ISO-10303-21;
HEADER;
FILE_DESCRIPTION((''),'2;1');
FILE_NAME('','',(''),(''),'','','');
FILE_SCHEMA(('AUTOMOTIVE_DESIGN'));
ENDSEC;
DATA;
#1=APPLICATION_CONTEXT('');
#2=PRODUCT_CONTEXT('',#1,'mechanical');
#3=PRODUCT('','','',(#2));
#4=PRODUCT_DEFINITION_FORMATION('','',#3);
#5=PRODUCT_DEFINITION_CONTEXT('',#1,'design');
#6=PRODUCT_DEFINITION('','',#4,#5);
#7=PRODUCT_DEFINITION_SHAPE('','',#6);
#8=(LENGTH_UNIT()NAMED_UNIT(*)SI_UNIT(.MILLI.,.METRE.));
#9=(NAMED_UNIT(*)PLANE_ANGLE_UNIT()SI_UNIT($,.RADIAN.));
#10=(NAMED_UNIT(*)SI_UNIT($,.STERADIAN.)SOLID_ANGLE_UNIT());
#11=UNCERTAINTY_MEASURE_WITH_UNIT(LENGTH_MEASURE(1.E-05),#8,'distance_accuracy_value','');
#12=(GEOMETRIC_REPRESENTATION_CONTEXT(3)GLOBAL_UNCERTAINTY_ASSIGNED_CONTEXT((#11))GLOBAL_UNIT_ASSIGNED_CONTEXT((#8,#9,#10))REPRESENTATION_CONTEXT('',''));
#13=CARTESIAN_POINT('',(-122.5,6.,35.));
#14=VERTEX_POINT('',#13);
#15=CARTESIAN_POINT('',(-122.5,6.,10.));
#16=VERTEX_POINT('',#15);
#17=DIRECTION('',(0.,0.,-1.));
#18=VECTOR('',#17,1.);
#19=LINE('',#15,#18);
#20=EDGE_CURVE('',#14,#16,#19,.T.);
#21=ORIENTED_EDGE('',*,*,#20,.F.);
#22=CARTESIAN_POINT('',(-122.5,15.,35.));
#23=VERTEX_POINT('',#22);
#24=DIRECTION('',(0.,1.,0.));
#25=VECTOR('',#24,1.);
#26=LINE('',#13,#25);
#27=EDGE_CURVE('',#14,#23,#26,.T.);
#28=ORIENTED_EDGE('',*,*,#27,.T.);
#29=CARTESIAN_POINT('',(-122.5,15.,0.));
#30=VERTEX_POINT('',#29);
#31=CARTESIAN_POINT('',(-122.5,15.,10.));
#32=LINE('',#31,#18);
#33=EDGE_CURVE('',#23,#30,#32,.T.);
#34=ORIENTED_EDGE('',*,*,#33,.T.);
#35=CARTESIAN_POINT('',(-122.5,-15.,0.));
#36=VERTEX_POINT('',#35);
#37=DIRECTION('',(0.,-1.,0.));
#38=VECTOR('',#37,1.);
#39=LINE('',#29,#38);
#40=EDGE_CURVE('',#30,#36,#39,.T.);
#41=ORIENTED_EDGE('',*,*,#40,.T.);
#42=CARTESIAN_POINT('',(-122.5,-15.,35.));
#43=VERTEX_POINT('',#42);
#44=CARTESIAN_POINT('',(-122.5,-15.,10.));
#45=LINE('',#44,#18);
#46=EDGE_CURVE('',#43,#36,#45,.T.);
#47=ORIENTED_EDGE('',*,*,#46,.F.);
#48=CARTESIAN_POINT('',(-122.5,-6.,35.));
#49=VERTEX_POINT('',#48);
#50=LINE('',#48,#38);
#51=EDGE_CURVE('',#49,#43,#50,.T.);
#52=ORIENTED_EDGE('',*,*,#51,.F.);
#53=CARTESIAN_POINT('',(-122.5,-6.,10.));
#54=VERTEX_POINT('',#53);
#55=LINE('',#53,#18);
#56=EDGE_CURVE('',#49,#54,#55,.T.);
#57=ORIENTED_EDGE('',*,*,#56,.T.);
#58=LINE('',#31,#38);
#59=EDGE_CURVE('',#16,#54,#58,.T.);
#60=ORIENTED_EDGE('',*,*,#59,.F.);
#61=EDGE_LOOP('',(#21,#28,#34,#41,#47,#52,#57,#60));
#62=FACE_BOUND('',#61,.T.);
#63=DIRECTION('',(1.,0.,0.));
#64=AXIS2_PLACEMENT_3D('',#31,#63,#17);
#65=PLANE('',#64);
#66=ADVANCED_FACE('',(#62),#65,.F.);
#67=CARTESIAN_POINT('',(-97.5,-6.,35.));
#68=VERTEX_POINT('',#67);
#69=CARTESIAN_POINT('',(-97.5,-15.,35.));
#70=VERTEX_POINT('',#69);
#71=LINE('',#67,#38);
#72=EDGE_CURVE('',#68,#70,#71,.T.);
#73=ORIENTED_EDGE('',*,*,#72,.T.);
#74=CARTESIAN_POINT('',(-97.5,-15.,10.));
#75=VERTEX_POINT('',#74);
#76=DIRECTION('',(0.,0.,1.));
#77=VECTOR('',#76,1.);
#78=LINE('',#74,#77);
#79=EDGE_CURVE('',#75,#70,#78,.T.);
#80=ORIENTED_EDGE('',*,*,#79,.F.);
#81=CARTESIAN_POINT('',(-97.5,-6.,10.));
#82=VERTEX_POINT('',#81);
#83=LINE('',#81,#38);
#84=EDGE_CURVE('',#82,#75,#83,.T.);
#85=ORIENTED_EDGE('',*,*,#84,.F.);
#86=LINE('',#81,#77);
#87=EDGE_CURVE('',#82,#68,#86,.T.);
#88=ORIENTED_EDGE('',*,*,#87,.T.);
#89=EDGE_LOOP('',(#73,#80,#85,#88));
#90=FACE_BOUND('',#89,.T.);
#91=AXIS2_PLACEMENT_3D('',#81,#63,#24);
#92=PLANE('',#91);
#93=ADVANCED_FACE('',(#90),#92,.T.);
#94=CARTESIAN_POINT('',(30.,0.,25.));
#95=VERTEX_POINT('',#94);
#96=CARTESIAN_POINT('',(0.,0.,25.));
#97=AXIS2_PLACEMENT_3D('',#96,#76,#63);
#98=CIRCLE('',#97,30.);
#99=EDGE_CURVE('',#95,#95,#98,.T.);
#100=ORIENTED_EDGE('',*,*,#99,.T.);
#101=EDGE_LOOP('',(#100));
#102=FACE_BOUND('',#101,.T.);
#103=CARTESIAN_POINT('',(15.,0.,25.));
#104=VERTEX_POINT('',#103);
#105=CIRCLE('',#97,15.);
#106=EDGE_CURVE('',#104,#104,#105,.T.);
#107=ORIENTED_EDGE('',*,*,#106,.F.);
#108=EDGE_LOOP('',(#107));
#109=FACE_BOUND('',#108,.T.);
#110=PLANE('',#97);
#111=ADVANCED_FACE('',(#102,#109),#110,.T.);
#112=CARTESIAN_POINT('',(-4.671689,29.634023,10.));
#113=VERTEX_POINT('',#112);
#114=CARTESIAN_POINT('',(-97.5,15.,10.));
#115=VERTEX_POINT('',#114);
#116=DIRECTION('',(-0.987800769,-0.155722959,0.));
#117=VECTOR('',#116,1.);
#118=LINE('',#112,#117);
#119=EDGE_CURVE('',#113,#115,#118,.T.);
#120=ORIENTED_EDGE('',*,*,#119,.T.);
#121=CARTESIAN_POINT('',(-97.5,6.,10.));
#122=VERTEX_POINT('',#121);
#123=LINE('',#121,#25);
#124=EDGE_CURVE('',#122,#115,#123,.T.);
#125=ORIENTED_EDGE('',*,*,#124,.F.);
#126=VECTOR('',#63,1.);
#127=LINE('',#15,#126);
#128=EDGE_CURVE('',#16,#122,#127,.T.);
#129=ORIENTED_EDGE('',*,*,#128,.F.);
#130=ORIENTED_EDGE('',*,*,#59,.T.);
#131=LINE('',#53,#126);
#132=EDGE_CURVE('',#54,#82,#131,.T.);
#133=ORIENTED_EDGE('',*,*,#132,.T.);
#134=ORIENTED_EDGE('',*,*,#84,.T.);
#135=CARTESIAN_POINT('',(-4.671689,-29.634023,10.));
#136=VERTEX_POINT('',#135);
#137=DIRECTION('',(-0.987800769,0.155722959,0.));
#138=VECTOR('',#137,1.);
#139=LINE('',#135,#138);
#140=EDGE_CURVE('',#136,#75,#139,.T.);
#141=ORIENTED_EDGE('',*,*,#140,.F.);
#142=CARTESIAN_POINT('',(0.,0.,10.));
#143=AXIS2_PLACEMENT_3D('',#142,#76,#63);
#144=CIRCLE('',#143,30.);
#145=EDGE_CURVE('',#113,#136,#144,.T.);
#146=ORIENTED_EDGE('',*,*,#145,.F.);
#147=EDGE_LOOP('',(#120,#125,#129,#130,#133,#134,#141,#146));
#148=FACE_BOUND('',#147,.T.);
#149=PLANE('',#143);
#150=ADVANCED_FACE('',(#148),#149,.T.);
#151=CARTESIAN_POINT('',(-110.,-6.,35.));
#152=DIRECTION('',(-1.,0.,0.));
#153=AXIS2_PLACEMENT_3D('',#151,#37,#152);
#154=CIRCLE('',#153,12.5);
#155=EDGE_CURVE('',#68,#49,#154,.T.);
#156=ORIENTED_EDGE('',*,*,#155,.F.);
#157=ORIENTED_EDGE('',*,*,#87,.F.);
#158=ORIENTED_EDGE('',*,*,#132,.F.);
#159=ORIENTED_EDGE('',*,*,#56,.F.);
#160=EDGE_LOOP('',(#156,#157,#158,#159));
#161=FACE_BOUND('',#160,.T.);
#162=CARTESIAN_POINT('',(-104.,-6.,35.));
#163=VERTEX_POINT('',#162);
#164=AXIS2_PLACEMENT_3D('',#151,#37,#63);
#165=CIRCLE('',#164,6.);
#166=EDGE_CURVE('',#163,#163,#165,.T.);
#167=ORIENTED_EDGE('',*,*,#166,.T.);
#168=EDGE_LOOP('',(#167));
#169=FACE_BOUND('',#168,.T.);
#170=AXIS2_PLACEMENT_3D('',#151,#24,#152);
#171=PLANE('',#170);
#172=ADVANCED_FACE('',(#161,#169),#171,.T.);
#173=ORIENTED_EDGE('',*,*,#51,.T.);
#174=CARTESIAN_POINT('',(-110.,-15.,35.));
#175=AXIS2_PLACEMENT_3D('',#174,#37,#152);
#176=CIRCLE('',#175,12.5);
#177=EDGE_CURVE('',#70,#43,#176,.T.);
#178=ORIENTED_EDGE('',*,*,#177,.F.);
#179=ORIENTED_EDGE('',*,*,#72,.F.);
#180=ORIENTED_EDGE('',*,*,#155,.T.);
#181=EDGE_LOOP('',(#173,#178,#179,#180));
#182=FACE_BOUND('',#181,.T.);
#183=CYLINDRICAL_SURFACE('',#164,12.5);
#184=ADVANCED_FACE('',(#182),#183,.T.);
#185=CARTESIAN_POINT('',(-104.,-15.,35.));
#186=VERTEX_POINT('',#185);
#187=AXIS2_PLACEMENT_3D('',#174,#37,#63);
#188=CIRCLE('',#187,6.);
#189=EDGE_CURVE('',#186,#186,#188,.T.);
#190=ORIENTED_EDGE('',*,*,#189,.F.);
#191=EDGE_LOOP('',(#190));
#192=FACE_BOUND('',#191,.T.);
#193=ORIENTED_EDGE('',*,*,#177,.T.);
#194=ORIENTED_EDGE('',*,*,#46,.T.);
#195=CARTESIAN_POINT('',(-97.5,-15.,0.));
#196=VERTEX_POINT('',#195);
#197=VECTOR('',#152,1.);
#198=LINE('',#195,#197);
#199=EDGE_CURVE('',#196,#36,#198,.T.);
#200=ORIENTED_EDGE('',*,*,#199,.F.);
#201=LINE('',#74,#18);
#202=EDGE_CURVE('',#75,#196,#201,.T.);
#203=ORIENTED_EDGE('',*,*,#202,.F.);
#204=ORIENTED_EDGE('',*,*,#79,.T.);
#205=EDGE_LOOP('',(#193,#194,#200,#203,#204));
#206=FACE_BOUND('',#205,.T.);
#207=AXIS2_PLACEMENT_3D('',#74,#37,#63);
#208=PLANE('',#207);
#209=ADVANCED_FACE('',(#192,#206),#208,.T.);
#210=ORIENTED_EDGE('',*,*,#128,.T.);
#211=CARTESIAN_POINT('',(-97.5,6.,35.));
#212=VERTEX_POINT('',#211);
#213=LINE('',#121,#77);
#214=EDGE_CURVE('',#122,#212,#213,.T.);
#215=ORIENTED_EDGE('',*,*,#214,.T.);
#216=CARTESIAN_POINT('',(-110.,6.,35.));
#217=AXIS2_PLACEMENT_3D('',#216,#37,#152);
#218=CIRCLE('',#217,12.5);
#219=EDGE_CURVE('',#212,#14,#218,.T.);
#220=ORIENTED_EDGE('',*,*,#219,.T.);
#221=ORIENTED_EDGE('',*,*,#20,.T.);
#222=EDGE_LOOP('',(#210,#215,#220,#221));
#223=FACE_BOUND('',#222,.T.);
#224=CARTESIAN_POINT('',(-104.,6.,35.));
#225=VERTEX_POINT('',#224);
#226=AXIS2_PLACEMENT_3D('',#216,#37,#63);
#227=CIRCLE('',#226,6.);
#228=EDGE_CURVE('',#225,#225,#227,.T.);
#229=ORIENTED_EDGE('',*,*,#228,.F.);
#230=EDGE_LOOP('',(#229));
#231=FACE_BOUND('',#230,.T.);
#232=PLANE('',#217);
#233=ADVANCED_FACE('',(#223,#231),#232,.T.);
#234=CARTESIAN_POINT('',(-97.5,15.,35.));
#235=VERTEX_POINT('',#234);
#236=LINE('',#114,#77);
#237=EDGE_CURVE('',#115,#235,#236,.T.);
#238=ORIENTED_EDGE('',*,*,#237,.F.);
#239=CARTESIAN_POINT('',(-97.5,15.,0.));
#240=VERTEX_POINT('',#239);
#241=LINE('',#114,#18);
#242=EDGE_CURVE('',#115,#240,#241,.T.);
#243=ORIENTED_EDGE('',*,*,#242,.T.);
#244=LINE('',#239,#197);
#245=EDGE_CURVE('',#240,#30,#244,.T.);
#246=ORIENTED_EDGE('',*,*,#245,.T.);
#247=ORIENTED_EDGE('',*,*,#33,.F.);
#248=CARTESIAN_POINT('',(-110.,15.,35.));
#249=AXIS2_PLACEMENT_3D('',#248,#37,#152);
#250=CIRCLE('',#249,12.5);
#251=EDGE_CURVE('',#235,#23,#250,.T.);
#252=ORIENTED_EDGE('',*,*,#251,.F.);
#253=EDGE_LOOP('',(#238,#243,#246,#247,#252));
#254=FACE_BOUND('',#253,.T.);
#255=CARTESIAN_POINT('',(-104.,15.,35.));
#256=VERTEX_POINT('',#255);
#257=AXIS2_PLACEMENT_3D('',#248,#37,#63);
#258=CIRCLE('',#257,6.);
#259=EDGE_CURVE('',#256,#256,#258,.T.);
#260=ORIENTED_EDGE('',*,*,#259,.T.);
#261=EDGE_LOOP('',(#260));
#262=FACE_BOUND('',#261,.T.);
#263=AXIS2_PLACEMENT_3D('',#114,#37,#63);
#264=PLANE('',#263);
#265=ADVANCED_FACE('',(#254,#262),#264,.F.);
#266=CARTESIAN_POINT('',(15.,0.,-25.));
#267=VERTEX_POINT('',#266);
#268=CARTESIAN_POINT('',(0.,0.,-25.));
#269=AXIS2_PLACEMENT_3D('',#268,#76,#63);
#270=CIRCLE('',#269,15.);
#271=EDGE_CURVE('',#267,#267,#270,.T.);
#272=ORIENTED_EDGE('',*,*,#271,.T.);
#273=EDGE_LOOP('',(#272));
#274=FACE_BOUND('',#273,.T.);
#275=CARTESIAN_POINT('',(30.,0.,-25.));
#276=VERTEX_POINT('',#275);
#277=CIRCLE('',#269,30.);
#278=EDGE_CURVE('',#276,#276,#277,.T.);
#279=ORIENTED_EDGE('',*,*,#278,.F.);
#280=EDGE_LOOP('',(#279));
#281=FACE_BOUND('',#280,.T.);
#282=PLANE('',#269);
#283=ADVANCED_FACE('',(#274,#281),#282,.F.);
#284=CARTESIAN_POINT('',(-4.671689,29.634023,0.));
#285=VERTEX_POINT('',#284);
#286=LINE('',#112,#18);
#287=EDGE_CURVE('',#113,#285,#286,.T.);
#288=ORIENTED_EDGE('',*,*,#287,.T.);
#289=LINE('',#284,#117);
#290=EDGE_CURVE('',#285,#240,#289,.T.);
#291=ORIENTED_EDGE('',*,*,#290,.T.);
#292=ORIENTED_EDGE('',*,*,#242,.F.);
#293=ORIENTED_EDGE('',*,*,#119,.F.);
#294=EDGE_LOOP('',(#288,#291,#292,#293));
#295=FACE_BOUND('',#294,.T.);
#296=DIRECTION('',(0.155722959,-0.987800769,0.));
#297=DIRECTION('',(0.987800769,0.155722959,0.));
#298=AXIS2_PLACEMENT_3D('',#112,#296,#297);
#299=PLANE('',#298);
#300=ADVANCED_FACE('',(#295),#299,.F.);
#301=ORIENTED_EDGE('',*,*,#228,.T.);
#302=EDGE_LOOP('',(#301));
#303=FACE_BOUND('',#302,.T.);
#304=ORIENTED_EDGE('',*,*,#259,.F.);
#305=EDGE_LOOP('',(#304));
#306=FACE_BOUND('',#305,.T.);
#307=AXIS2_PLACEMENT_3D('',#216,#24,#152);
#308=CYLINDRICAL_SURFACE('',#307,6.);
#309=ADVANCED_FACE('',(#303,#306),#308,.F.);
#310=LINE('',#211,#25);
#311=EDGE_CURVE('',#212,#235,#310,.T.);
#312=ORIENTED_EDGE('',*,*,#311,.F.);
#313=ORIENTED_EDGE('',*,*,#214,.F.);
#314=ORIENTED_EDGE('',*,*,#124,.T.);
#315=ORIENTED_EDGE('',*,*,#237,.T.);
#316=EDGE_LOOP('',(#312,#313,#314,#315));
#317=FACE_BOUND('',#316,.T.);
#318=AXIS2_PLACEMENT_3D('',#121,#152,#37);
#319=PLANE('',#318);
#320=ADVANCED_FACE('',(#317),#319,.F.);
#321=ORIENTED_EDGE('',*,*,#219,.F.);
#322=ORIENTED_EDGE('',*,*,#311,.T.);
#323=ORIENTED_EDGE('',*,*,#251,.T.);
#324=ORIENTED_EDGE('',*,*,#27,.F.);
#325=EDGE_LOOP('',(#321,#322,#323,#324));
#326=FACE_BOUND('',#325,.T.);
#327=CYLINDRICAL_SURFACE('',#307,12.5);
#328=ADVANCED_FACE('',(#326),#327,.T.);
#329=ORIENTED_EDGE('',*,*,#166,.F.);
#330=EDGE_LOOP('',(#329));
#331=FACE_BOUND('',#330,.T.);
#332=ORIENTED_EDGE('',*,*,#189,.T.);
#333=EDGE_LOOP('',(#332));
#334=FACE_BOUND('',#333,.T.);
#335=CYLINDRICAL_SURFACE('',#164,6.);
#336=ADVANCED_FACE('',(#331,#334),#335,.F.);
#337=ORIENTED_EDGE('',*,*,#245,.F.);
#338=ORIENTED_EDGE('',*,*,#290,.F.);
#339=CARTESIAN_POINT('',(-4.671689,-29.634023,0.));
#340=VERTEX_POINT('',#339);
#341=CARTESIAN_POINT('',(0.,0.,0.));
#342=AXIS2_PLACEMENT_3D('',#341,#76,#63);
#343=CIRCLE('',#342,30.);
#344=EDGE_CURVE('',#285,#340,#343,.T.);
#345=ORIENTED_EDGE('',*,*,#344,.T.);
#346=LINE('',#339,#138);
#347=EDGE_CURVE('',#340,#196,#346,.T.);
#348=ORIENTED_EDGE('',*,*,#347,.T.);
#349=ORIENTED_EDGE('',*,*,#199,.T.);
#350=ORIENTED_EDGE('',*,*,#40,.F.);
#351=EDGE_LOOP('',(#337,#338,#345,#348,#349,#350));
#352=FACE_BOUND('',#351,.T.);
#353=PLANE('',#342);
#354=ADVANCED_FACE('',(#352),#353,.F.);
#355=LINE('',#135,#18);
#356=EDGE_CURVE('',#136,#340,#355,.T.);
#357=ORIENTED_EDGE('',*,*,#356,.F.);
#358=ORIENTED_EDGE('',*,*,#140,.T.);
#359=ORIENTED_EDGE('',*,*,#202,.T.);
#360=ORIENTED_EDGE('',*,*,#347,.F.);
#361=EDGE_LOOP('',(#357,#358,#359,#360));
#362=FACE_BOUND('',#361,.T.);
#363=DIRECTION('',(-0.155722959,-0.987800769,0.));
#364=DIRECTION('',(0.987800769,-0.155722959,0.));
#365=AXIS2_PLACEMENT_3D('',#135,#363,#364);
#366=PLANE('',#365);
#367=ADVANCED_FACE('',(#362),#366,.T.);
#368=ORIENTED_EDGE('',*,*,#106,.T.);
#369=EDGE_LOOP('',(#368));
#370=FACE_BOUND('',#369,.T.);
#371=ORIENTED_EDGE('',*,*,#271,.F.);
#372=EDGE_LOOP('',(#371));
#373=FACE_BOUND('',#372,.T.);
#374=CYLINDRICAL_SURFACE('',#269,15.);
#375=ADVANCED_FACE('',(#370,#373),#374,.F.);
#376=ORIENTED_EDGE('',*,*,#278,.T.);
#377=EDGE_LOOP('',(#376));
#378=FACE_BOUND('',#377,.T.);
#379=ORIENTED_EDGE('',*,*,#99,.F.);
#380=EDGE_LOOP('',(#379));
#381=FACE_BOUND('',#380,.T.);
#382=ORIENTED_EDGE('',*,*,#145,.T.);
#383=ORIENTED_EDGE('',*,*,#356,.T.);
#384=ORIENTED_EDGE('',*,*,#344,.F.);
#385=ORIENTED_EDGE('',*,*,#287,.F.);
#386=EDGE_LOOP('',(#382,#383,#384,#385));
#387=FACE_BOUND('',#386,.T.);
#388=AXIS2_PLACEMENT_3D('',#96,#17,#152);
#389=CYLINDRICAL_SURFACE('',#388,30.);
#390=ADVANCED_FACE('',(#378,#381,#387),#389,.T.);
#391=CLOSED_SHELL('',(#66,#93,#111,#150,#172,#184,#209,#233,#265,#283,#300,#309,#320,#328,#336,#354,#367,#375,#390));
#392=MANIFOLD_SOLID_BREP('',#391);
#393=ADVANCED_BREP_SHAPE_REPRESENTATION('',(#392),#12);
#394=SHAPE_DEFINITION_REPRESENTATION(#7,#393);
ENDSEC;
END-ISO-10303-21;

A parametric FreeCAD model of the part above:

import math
import FreeCAD as App
import Part
import Sketcher
Q = App.Units.Quantity

doc = App.newDocument("Part")
params = doc.addObject("Spreadsheet::Sheet", "Params")
for row, (alias, value) in enumerate([
    ("sketch1_diameter", "60 mm"),
    ("pad1_length", "50 mm"),
    ("sketch2_diameter", "30 mm"),
    ("pocket1_length", "50 mm"),
    ("sketch3_radius", "30 mm"),
    ("sketch3_width", "25 mm"),
    ("sketch3_height", "30 mm"),
    ("pad2_length", "10 mm"),
    ("sketch4_diameter", "12 mm"),
    ("sketch4_radius", "12.5 mm"),
    ("pad3_length", "9 mm"),
], start=1):
    params.set(f"A{row}", alias)
    params.set(f"B{row}", "=" + value)
    params.setAlias(f"B{row}", alias)

body = doc.addObject("PartDesign::Body", "Body")

# Sketch on XY plane
sketch1 = body.newObject("Sketcher::SketchObject", "Sketch")
sketch1.AttachmentSupport = (doc.getObject("XY_Plane"), [""])
sketch1.MapMode = "FlatFace"
sketch1.addGeometry(Part.Circle(App.Vector(0, 0, 0), App.Vector(0, 0, 1), 30), False)
sketch1.addConstraint([
    Sketcher.Constraint("Coincident", 0, 3, -1, 1),
    Sketcher.Constraint("Diameter", 0, Q("60 mm")),
])
sketch1.setExpression("Constraints[1]", "Params.sketch1_diameter")
pad1 = body.newObject("PartDesign::Pad", "Pad")
pad1.Profile = sketch1
pad1.setExpression("Length", "Params.pad1_length")
pad1.Midplane = True

# Sketch on XY plane
sketch2 = body.newObject("Sketcher::SketchObject", "Sketch001")
sketch2.AttachmentSupport = (doc.getObject("XY_Plane"), [""])
sketch2.MapMode = "FlatFace"
sketch2.AttachmentOffset = App.Placement(App.Vector(0, 0, 25), App.Rotation())
sketch2.addGeometry(Part.Circle(App.Vector(0, 0, 0), App.Vector(0, 0, 1), 15), False)
sketch2.addConstraint([
    Sketcher.Constraint("Coincident", 0, 3, -1, 1),
    Sketcher.Constraint("Diameter", 0, Q("30 mm")),
])
sketch2.setExpression("Constraints[1]", "Params.sketch2_diameter")
pocket1 = body.newObject("PartDesign::Pocket", "Pocket")
pocket1.Profile = sketch2
pocket1.setExpression("Length", "Params.pocket1_length")

# Sketch on XY plane
sketch3 = body.newObject("Sketcher::SketchObject", "Sketch002")
sketch3.AttachmentSupport = (doc.getObject("XY_Plane"), [""])
sketch3.MapMode = "FlatFace"
sketch3.addGeometry([
    Part.LineSegment(App.Vector(-4.671689, 29.634023, 0), App.Vector(-97.5, 15, 0)),  # 0
    Part.LineSegment(App.Vector(-97.5, 15, 0), App.Vector(-122.5, 15, 0)),  # 1
    Part.LineSegment(App.Vector(-122.5, 15, 0), App.Vector(-122.5, -15, 0)),  # 2
    Part.LineSegment(App.Vector(-122.5, -15, 0), App.Vector(-97.5, -15, 0)),  # 3
    Part.LineSegment(App.Vector(-97.5, -15, 0), App.Vector(-4.671689, -29.634023, 0)),  # 4
    Part.ArcOfCircle(Part.Circle(App.Vector(0, 0, 0), App.Vector(0, 0, 1), 30), math.radians(98.958728), math.radians(261.041272)),  # 5
], False)
sketch3.addConstraint([
    Sketcher.Constraint("Coincident", 0, 2, 1, 1),
    Sketcher.Constraint("Coincident", 1, 2, 2, 1),
    Sketcher.Constraint("Coincident", 2, 2, 3, 1),
    Sketcher.Constraint("Coincident", 3, 2, 4, 1),
    Sketcher.Constraint("Tangent", 4, 2, 5, 2),
    Sketcher.Constraint("Tangent", 5, 1, 0, 1),
    Sketcher.Constraint("Horizontal", 1),
    Sketcher.Constraint("Vertical", 2),
    Sketcher.Constraint("Horizontal", 3),
    Sketcher.Constraint("Coincident", 5, 3, -1, 1),
    Sketcher.Constraint("Symmetric", 0, 2, 3, 2, -1),
    Sketcher.Constraint("Radius", 5, Q("30 mm")),
    Sketcher.Constraint("DistanceX", 1, 2, 1, 1, Q("25 mm")),
    Sketcher.Constraint("DistanceY", 2, 2, 2, 1, Q("30 mm")),
    Sketcher.Constraint("DistanceX", 0, 2, -1, 1, Q("97.5 mm")),
])
sketch3.setExpression("Constraints[11]", "Params.sketch3_radius")
sketch3.setExpression("Constraints[12]", "Params.sketch3_width")
sketch3.setExpression("Constraints[13]", "Params.sketch3_height")
pad2 = body.newObject("PartDesign::Pad", "Pad001")
pad2.Profile = sketch3
pad2.setExpression("Length", "Params.pad2_length")

# Sketch on XZ plane
sketch4 = body.newObject("Sketcher::SketchObject", "Sketch003")
sketch4.AttachmentSupport = (doc.getObject("XZ_Plane"), [""])
sketch4.MapMode = "FlatFace"
sketch4.AttachmentOffset = App.Placement(App.Vector(0, 0, 15), App.Rotation())
sketch4.addGeometry([
    Part.LineSegment(App.Vector(-122.5, 35, 0), App.Vector(-122.5, 10, 0)),  # 0
    Part.LineSegment(App.Vector(-122.5, 10, 0), App.Vector(-97.5, 10, 0)),  # 1
    Part.LineSegment(App.Vector(-97.5, 10, 0), App.Vector(-97.5, 35, 0)),  # 2
    Part.ArcOfCircle(Part.Circle(App.Vector(-110, 35, 0), App.Vector(0, 0, 1), 12.5), math.radians(0), math.radians(180)),  # 3
    Part.Circle(App.Vector(-110, 35, 0), App.Vector(0, 0, 1), 6),  # 4
], False)
sketch4.addConstraint([
    Sketcher.Constraint("Coincident", 0, 2, 1, 1),
    Sketcher.Constraint("Coincident", 1, 2, 2, 1),
    Sketcher.Constraint("Tangent", 2, 2, 3, 1),
    Sketcher.Constraint("Tangent", 3, 2, 0, 1),
    Sketcher.Constraint("Vertical", 0),
    Sketcher.Constraint("Horizontal", 1),
    Sketcher.Constraint("Vertical", 2),
    Sketcher.Constraint("Coincident", 4, 3, 3, 3),
    Sketcher.Constraint("Equal", 1, 0),
    Sketcher.Constraint("Diameter", 4, Q("12 mm")),
    Sketcher.Constraint("Radius", 3, Q("12.5 mm")),
    Sketcher.Constraint("DistanceX", 3, 3, -1, 1, Q("110 mm")),
    Sketcher.Constraint("DistanceY", -1, 1, 3, 3, Q("35 mm")),
])
sketch4.setExpression("Constraints[9]", "Params.sketch4_diameter")
sketch4.setExpression("Constraints[10]", "Params.sketch4_radius")
pad3 = body.newObject("PartDesign::Pad", "Pad002")
pad3.Profile = sketch4
pad3.setExpression("Length", "Params.pad3_length")
pad3.Reversed = True
doc.recompute()

mirrored = body.newObject("PartDesign::Mirrored", "Mirrored")
mirrored.Originals = [pad3]
mirrored.MirrorPlane = (doc.getObject("XZ_Plane"), [""])
body.Tip = mirrored

doc.recompute()
